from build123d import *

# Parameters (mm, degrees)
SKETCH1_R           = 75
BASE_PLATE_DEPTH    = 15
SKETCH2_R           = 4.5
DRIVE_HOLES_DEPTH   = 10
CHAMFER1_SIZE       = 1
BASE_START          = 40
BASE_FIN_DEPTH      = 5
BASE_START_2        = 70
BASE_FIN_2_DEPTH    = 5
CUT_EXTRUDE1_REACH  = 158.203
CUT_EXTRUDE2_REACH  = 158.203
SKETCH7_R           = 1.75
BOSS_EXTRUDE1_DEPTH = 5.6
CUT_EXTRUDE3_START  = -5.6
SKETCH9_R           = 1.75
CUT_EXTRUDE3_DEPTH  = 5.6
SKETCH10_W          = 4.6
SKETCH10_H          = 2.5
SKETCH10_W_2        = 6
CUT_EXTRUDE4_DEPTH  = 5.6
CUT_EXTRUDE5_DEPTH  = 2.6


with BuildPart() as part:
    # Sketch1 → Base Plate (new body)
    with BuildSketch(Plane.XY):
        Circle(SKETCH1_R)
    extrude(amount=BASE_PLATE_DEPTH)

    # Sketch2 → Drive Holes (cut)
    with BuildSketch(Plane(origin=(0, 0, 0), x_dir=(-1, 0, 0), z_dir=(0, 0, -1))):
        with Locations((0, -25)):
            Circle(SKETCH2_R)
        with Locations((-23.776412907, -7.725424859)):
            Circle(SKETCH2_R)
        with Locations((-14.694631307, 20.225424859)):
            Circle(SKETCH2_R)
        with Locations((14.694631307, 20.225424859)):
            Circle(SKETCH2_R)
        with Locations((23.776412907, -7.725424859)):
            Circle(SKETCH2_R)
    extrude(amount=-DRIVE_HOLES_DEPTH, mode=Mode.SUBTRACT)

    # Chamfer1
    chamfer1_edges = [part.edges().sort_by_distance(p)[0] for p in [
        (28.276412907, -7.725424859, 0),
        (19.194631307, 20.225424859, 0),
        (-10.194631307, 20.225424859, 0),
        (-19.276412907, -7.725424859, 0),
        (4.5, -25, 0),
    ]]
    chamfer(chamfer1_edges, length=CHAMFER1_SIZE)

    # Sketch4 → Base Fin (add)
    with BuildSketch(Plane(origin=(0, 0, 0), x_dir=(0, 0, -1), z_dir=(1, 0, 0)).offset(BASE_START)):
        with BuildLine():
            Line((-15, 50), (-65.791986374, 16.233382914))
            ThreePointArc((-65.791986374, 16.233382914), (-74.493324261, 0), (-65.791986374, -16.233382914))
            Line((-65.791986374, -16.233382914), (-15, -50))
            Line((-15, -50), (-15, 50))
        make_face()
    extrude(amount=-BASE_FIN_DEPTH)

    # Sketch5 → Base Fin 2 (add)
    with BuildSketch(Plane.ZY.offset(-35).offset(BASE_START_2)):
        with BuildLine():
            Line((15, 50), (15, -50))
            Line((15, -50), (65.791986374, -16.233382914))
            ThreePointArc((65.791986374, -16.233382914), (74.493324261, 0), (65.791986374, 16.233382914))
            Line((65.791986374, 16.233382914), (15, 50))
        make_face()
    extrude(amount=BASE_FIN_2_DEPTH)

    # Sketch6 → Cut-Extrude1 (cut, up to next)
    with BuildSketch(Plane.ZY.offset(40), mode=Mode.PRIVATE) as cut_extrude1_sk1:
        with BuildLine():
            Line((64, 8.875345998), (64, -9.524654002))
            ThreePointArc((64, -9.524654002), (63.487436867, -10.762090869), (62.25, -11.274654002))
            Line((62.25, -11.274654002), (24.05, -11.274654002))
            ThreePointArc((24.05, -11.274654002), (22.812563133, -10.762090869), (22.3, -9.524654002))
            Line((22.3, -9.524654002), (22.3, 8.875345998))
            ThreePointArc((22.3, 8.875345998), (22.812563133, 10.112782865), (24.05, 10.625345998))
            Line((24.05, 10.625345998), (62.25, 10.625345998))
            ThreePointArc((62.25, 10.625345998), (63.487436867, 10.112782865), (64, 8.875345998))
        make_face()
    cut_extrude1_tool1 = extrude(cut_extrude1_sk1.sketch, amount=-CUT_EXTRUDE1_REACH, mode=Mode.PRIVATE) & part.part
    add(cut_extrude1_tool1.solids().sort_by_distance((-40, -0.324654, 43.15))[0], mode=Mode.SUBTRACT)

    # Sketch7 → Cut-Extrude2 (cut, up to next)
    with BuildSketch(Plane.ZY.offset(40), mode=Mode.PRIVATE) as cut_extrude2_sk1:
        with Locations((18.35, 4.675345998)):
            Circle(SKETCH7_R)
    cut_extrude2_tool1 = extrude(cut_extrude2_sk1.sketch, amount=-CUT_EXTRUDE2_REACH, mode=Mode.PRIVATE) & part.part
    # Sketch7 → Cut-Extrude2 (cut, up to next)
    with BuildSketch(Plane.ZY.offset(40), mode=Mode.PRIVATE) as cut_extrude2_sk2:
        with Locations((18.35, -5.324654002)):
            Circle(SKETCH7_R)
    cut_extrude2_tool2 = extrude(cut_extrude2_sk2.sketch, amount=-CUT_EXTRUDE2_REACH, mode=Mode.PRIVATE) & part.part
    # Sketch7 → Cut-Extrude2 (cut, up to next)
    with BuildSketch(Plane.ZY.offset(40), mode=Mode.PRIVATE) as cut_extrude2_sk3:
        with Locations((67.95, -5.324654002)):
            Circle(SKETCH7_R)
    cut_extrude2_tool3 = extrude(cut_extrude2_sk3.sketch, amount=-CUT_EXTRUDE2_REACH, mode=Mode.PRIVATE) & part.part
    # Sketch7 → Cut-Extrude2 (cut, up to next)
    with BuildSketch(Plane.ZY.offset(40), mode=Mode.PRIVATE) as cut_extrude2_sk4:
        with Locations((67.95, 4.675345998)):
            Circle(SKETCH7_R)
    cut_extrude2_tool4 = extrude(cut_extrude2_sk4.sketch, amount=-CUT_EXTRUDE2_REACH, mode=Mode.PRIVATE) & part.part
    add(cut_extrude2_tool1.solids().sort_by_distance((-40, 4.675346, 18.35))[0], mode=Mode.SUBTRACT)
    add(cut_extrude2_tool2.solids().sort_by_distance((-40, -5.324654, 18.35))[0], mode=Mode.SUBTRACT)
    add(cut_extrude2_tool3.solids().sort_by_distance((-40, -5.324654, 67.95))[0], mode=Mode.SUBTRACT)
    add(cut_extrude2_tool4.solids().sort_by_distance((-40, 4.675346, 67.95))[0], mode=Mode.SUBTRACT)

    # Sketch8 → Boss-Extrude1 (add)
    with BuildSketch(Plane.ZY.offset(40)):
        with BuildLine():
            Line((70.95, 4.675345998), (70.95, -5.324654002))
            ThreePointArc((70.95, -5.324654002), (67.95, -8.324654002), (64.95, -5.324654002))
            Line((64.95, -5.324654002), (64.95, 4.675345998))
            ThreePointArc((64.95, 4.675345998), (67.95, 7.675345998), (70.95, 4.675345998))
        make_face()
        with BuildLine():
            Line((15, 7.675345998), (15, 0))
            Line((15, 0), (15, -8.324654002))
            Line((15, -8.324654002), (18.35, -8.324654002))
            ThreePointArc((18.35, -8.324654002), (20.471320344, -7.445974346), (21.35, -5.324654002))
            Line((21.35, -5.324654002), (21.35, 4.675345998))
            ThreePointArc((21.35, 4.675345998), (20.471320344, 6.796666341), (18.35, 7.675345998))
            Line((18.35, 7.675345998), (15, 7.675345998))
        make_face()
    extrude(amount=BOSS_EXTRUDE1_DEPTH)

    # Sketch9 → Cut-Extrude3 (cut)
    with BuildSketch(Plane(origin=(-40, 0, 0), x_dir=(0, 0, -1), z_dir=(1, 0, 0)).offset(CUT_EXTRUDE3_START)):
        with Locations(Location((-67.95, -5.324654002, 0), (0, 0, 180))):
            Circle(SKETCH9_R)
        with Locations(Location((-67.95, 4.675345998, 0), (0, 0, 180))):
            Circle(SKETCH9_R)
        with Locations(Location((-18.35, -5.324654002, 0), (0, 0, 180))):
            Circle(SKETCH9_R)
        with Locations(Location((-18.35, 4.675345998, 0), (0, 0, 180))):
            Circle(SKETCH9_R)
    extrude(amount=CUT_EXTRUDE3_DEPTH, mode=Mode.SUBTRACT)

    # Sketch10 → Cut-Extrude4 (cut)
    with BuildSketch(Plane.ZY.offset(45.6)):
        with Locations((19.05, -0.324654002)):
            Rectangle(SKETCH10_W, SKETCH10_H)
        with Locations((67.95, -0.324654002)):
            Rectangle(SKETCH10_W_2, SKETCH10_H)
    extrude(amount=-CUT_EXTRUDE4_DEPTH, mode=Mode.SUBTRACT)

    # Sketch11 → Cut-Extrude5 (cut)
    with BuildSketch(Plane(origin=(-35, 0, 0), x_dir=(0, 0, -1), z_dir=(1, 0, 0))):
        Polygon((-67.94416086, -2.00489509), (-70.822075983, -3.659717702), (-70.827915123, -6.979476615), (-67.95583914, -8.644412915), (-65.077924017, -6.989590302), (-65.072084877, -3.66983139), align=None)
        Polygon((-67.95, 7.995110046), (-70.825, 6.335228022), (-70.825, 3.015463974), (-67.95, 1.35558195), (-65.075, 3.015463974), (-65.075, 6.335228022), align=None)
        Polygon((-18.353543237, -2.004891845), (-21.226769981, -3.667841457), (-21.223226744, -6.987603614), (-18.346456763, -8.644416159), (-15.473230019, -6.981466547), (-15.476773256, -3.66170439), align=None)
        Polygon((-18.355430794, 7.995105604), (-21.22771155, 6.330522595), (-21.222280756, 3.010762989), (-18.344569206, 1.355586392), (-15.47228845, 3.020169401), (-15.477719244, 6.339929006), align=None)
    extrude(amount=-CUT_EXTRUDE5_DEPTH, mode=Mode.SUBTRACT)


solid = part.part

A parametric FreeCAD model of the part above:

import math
import FreeCAD as App
import Part
import Sketcher
from FreeCAD import Vector
Q = App.Units.Quantity


def edges_at(feature, points):
    """Names of the edges that pass closest to the given points."""
    edges = feature.Shape.Edges
    near = lambda p: min(range(len(edges)), key=lambda i: edges[i].distToShape(Part.Vertex(*p))[0])
    return sorted({f"Edge{near(p) + 1}" for p in points})

doc = App.newDocument("Part")
params = doc.addObject("Spreadsheet::Sheet", "Params")
for row, (alias, value) in enumerate([
    ("sketch1_diameter", "150 mm"),
    ("pad1_length", "15 mm"),
    ("sketch2_diameter", "9 mm"),
    ("pocket1_length", "10 mm"),
    ("chamfer_size", "1 mm"),
    ("sketch3_width", "100 mm"),
    ("pad2_length", "5 mm"),
    ("sketch4_width", "100 mm"),
    ("pad3_length", "5 mm"),
    ("sketch5_radius", "1.75 mm"),
    ("sketch5_width", "18.4 mm"),
    ("sketch5_height", "38.2 mm"),
    ("sketch6_diameter", "3.5 mm"),
    ("sketch7_diameter", "3.5 mm"),
    ("sketch8_diameter", "3.5 mm"),
    ("sketch9_diameter", "3.5 mm"),
    ("sketch10_radius", "3 mm"),
    ("sketch10_width", "10 mm"),
    ("sketch10_height", "3.35 mm"),
    ("pad4_length", "5.6 mm"),
    ("sketch11_diameter", "3.5 mm"),
    ("pocket7_length", "5.6 mm"),
    ("sketch12_height", "6 mm"),
    ("sketch12_width", "2.5 mm"),
    ("sketch12_height2", "4.6 mm"),
    ("pocket8_length", "5.6 mm"),
    ("pocket9_length", "2.6 mm"),
], start=1):
    params.set(f"A{row}", alias)
    params.set(f"B{row}", "=" + value)
    params.setAlias(f"B{row}", alias)

body = doc.addObject("PartDesign::Body", "Body")

# Sketch on XY plane
sketch1 = doc.addObject("Sketcher::SketchObject", "Sketch")
body.addObject(sketch1)
sketch1.AttachmentSupport = (doc.XY_Plane, [""])
sketch1.MapMode = "FlatFace"
sketch1.addGeometry(Part.Circle(Vector(0, 0, 0), Vector(0, 0, 1), 75), False)
sketch1.addConstraint([
    Sketcher.Constraint("Coincident", 0, 3, -1, 1),
    Sketcher.Constraint("Diameter", 0, Q("150 mm")),
])
sketch1.setExpression("Constraints[1]", "Params.sketch1_diameter")
pad1 = doc.addObject("PartDesign::Pad", "Pad")
body.addObject(pad1)
pad1.Profile = sketch1
pad1.setExpression("Length", "Params.pad1_length")

# Sketch on XY plane
sketch2 = doc.addObject("Sketcher::SketchObject", "Sketch001")
body.addObject(sketch2)
sketch2.AttachmentSupport = (doc.XY_Plane, [""])
sketch2.MapMode = "FlatFace"
sketch2.addGeometry([
    Part.Circle(Vector(0, -25, 0), Vector(0, 0, 1), 4.5),  # 0
    Part.Circle(Vector(23.8, -7.7, 0), Vector(0, 0, 1), 4.5),  # 1
    Part.Circle(Vector(14.7, 20.2, 0), Vector(0, 0, 1), 4.5),  # 2
    Part.Circle(Vector(-14.7, 20.2, 0), Vector(0, 0, 1), 4.5),  # 3
    Part.Circle(Vector(-23.8, -7.7, 0), Vector(0, 0, 1), 4.5),  # 4
], False)
sketch2.addConstraint([
    Sketcher.Constraint("Equal", 0, 1),
    Sketcher.Constraint("Equal", 1, 2),
    Sketcher.Constraint("Equal", 2, 3),
    Sketcher.Constraint("Equal", 3, 4),
    Sketcher.Constraint("Symmetric", 2, 3, 3, 3, -2),
    Sketcher.Constraint("Symmetric", 1, 3, 4, 3, -2),
    Sketcher.Constraint("PointOnObject", 0, 3, -2),
    Sketcher.Constraint("Diameter", 0, Q("9 mm")),
    Sketcher.Constraint("DistanceY", 0, 3, -1, 1, Q("25 mm")),
    Sketcher.Constraint("DistanceX", -1, 1, 2, 3, Q("14.694631 mm")),
    Sketcher.Constraint("DistanceX", 2, 3, 1, 3, Q("9.081782 mm")),
    Sketcher.Constraint("DistanceY", 1, 3, 2, 3, Q("27.95085 mm")),
    Sketcher.Constraint("DistanceY", 1, 3, -1, 1, Q("7.725425 mm")),
])
sketch2.setExpression("Constraints[7]", "Params.sketch2_diameter")
pocket1 = doc.addObject("PartDesign::Pocket", "Pocket")
body.addObject(pocket1)
pocket1.Profile = sketch2
pocket1.setExpression("Length", "Params.pocket1_length")
pocket1.Reversed = True
doc.recompute()

chamfer = doc.addObject("PartDesign::Chamfer", "Chamfer")
body.addObject(chamfer)
chamfer.Base = (pocket1, edges_at(pocket1, [
    (28.276, -7.725, 0),
    (19.195, 20.225, 0),
    (-10.195, 20.225, 0),
    (-19.276, -7.725, 0),
    (4.5, -25, 0),
]))
chamfer.setExpression("Size", "Params.chamfer_size")

# Sketch on YZ plane
sketch3 = doc.addObject("Sketcher::SketchObject", "Sketch002")
body.addObject(sketch3)
sketch3.AttachmentSupport = (doc.YZ_Plane, [""])
sketch3.MapMode = "FlatFace"
sketch3.AttachmentOffset = App.Placement(Vector(0, 0, 40), App.Rotation())
sketch3.addGeometry([
    Part.LineSegment(Vector(50, 15, 0), Vector(16, 66, 0)),
    Part.ArcOfCircle(Part.Circle(Vector(0, 55, 0), Vector(0, 0, 1), 19), math.radians(34), math.radians(146)),
    Part.LineSegment(Vector(-16, 66, 0), Vector(-50, 15, 0)),
    Part.LineSegment(Vector(-50, 15, 0), Vector(50, 15, 0)),
], False)
sketch3.addConstraint([
    Sketcher.Constraint("Tangent", 0, 2, 1, 1),
    Sketcher.Constraint("Tangent", 1, 2, 2, 1),
    Sketcher.Constraint("Coincident", 2, 2, 3, 1),
    Sketcher.Constraint("Coincident", 3, 2, 0, 1),
    Sketcher.Constraint("Horizontal", 3),
    Sketcher.Constraint("Symmetric", 0, 2, 1, 2, -2),
    Sketcher.Constraint("DistanceX", 3, 1, 3, 2, Q("100 mm")),
    Sketcher.Constraint("DistanceY", -1, 1, 1, 3, Q("55 mm")),
    Sketcher.Constraint("DistanceY", -1, 1, 2, 2, Q("15 mm")),
    Sketcher.Constraint("Radius", 1, Q("19.493324 mm")),
])
sketch3.setExpression("Constraints[6]", "Params.sketch3_width")
pad2 = doc.addObject("PartDesign::Pad", "Pad001")
body.addObject(pad2)
pad2.Profile = sketch3
pad2.setExpression("Length", "Params.pad2_length")
pad2.Reversed = True

# Sketch on YZ plane
sketch4 = doc.addObject("Sketcher::SketchObject", "Sketch003")
body.addObject(sketch4)
sketch4.AttachmentSupport = (doc.YZ_Plane, [""])
sketch4.MapMode = "FlatFace"
sketch4.AttachmentOffset = App.Placement(Vector(0, 0, -35), App.Rotation())
sketch4.addGeometry([
    Part.LineSegment(Vector(50, 15, 0), Vector(-50, 15, 0)),
    Part.LineSegment(Vector(-50, 15, 0), Vector(-16, 66, 0)),
    Part.ArcOfCircle(Part.Circle(Vector(0, 55, 0), Vector(0, 0, 1), 19), math.radians(34), math.radians(146)),
    Part.LineSegment(Vector(16, 66, 0), Vector(50, 15, 0)),
], False)
sketch4.addConstraint([
    Sketcher.Constraint("Coincident", 0, 2, 1, 1),
    Sketcher.Constraint("Tangent", 1, 2, 2, 2),
    Sketcher.Constraint("Tangent", 2, 1, 3, 1),
    Sketcher.Constraint("Coincident", 3, 2, 0, 1),
    Sketcher.Constraint("Horizontal", 0),
    Sketcher.Constraint("Symmetric", 1, 2, 2, 1, -2),
    Sketcher.Constraint("DistanceX", 0, 2, 0, 1, Q("100 mm")),
    Sketcher.Constraint("DistanceY", -1, 1, 2, 3, Q("55 mm")),
    Sketcher.Constraint("DistanceY", -1, 1, 0, 2, Q("15 mm")),
    Sketcher.Constraint("Radius", 2, Q("19.493324 mm")),
])
sketch4.setExpression("Constraints[6]", "Params.sketch4_width")
pad3 = doc.addObject("PartDesign::Pad", "Pad002")
body.addObject(pad3)
pad3.Profile = sketch4
pad3.setExpression("Length", "Params.pad3_length")
pad3.Reversed = True

# Sketch on YZ plane
sketch5 = doc.addObject("Sketcher::SketchObject", "Sketch004")
body.addObject(sketch5)
sketch5.AttachmentSupport = (doc.YZ_Plane, [""])
sketch5.MapMode = "FlatFace"
sketch5.AttachmentOffset = App.Placement(Vector(0, 0, -40), App.Rotation())
sketch5.addGeometry([
    Part.LineSegment(Vector(-9.5, 64, 0), Vector(8.9, 64, 0)),  # 0
    Part.ArcOfCircle(Part.Circle(Vector(8.9, 62.2, 0), Vector(0, 0, 1), 1.8), math.radians(0), math.radians(90)),  # 1
    Part.LineSegment(Vector(10.6, 62.2, 0), Vector(10.6, 24.1, 0)),  # 2
    Part.ArcOfCircle(Part.Circle(Vector(8.9, 24.1, 0), Vector(0, 0, 1), 1.8), math.radians(-90), math.radians(0)),  # 3
    Part.LineSegment(Vector(8.9, 22.3, 0), Vector(-9.5, 22.3, 0)),  # 4
    Part.ArcOfCircle(Part.Circle(Vector(-9.5, 24.1, 0), Vector(0, 0, 1), 1.8), math.radians(180), math.radians(270)),  # 5
    Part.LineSegment(Vector(-11.3, 24.1, 0), Vector(-11.3, 62.2, 0)),  # 6
    Part.ArcOfCircle(Part.Circle(Vector(-9.5, 62.2, 0), Vector(0, 0, 1), 1.8), math.radians(90), math.radians(180)),  # 7
], False)
sketch5.addConstraint([
    Sketcher.Constraint("Tangent", 0, 2, 1, 2),
    Sketcher.Constraint("Tangent", 1, 1, 2, 1),
    Sketcher.Constraint("Tangent", 2, 2, 3, 2),
    Sketcher.Constraint("Tangent", 3, 1, 4, 1),
    Sketcher.Constraint("Tangent", 4, 2, 5, 2),
    Sketcher.Constraint("Tangent", 5, 1, 6, 1),
    Sketcher.Constraint("Tangent", 6, 2, 7, 2),
    Sketcher.Constraint("Tangent", 7, 1, 0, 1),
    Sketcher.Constraint("Horizontal", 0),
    Sketcher.Constraint("Vertical", 2),
    Sketcher.Constraint("Horizontal", 4),
    Sketcher.Constraint("Vertical", 6),
    Sketcher.Constraint("Equal", 1, 3),
    Sketcher.Constraint("Equal", 3, 5),
    Sketcher.Constraint("Equal", 5, 7),
    Sketcher.Constraint("Radius", 1, Q("1.75 mm")),
    Sketcher.Constraint("DistanceX", 0, 1, 0, 2, Q("18.4 mm")),
    Sketcher.Constraint("DistanceY", 2, 2, 2, 1, Q("38.2 mm")),
    Sketcher.Constraint("DistanceY", -1, 1, 0, 2, Q("64 mm")),
    Sketcher.Constraint("DistanceX", -1, 1, 1, 3, Q("8.875346 mm")),
])
sketch5.setExpression("Constraints[15]", "Params.sketch5_radius")
sketch5.setExpression("Constraints[16]", "Params.sketch5_width")
sketch5.setExpression("Constraints[17]", "Params.sketch5_height")
pocket2 = doc.addObject("PartDesign::Pocket", "Pocket001")
body.addObject(pocket2)
pocket2.Profile = sketch5
pocket2.Type = "UpToFirst"
pocket2.Reversed = True

# Sketch on YZ plane
sketch6 = doc.addObject("Sketcher::SketchObject", "Sketch005")
body.addObject(sketch6)
sketch6.AttachmentSupport = (doc.YZ_Plane, [""])
sketch6.MapMode = "FlatFace"
sketch6.AttachmentOffset = App.Placement(Vector(0, 0, -40), App.Rotation())
sketch6.addGeometry(Part.Circle(Vector(4.7, 18.4, 0), Vector(0, 0, 1), 1.8), False)
sketch6.addConstraint([
    Sketcher.Constraint("Diameter", 0, Q("3.5 mm")),
    Sketcher.Constraint("DistanceY", -1, 1, 0, 3, Q("18.35 mm")),
    Sketcher.Constraint("DistanceX", -1, 1, 0, 3, Q("4.675346 mm")),
])
sketch6.setExpression("Constraints[0]", "Params.sketch6_diameter")
pocket3 = doc.addObject("PartDesign::Pocket", "Pocket002")
body.addObject(pocket3)
pocket3.Profile = sketch6
pocket3.Type = "UpToFirst"
pocket3.Reversed = True

# Sketch on YZ plane
sketch7 = doc.addObject("Sketcher::SketchObject", "Sketch006")
body.addObject(sketch7)
sketch7.AttachmentSupport = (doc.YZ_Plane, [""])
sketch7.MapMode = "FlatFace"
sketch7.AttachmentOffset = App.Placement(Vector(0, 0, -40), App.Rotation())
sketch7.addGeometry(Part.Circle(Vector(-5.3, 18.4, 0), Vector(0, 0, 1), 1.8), False)
sketch7.addConstraint([
    Sketcher.Constraint("Diameter", 0, Q("3.5 mm")),
    Sketcher.Constraint("DistanceY", -1, 1, 0, 3, Q("18.35 mm")),
    Sketcher.Constraint("DistanceX", 0, 3, -1, 1, Q("5.324654 mm")),
])
sketch7.setExpression("Constraints[0]", "Params.sketch7_diameter")
pocket4 = doc.addObject("PartDesign::Pocket", "Pocket003")
body.addObject(pocket4)
pocket4.Profile = sketch7
pocket4.Type = "UpToFirst"
pocket4.Reversed = True

# Sketch on YZ plane
sketch8 = doc.addObject("Sketcher::SketchObject", "Sketch007")
body.addObject(sketch8)
sketch8.AttachmentSupport = (doc.YZ_Plane, [""])
sketch8.MapMode = "FlatFace"
sketch8.AttachmentOffset = App.Placement(Vector(0, 0, -40), App.Rotation())
sketch8.addGeometry(Part.Circle(Vector(-5.3, 68, 0), Vector(0, 0, 1), 1.8), False)
sketch8.addConstraint([
    Sketcher.Constraint("Diameter", 0, Q("3.5 mm")),
    Sketcher.Constraint("DistanceY", -1, 1, 0, 3, Q("67.95 mm")),
    Sketcher.Constraint("DistanceX", 0, 3, -1, 1, Q("5.324654 mm")),
])
sketch8.setExpression("Constraints[0]", "Params.sketch8_diameter")
pocket5 = doc.addObject("PartDesign::Pocket", "Pocket004")
body.addObject(pocket5)
pocket5.Profile = sketch8
pocket5.Type = "UpToFirst"
pocket5.Reversed = True

# Sketch on YZ plane
sketch9 = doc.addObject("Sketcher::SketchObject", "Sketch008")
body.addObject(sketch9)
sketch9.AttachmentSupport = (doc.YZ_Plane, [""])
sketch9.MapMode = "FlatFace"
sketch9.AttachmentOffset = App.Placement(Vector(0, 0, -40), App.Rotation())
sketch9.addGeometry(Part.Circle(Vector(4.7, 68, 0), Vector(0, 0, 1), 1.8), False)
sketch9.addConstraint([
    Sketcher.Constraint("Diameter", 0, Q("3.5 mm")),
    Sketcher.Constraint("DistanceY", -1, 1, 0, 3, Q("67.95 mm")),
    Sketcher.Constraint("DistanceX", -1, 1, 0, 3, Q("4.675346 mm")),
])
sketch9.setExpression("Constraints[0]", "Params.sketch9_diameter")
pocket6 = doc.addObject("PartDesign::Pocket", "Pocket005")
body.addObject(pocket6)
pocket6.Profile = sketch9
pocket6.Type = "UpToFirst"
pocket6.Reversed = True

# Sketch on YZ plane
sketch10 = doc.addObject("Sketcher::SketchObject", "Sketch009")
body.addObject(sketch10)
sketch10.AttachmentSupport = (doc.YZ_Plane, [""])
sketch10.MapMode = "FlatFace"
sketch10.AttachmentOffset = App.Placement(Vector(0, 0, -40), App.Rotation())
sketch10.addGeometry([
    Part.LineSegment(Vector(-5.3, 71, 0), Vector(4.7, 71, 0)),  # 0
    Part.ArcOfCircle(Part.Circle(Vector(4.7, 68, 0), Vector(0, 0, 1), 3), math.radians(-90), math.radians(90)),  # 1
    Part.LineSegment(Vector(4.7, 65, 0), Vector(-5.3, 65, 0)),  # 2
    Part.ArcOfCircle(Part.Circle(Vector(-5.3, 68, 0), Vector(0, 0, 1), 3), math.radians(90), math.radians(270)),  # 3
    Part.LineSegment(Vector(7.7, 15, 0), Vector(-8.3, 15, 0)),  # 4
    Part.LineSegment(Vector(-8.3, 15, 0), Vector(-8.3, 18.4, 0)),  # 5
    Part.ArcOfCircle(Part.Circle(Vector(-5.3, 18.4, 0), Vector(0, 0, 1), 3), math.radians(90), math.radians(180)),  # 6
    Part.LineSegment(Vector(-5.3, 21.4, 0), Vector(4.7, 21.4, 0)),  # 7
    Part.ArcOfCircle(Part.Circle(Vector(4.7, 18.4, 0), Vector(0, 0, 1), 3), math.radians(0), math.radians(90)),  # 8
    Part.LineSegment(Vector(7.7, 18.4, 0), Vector(7.7, 15, 0)),  # 9
], False)
sketch10.addConstraint([
    Sketcher.Constraint("Tangent", 0, 2, 1, 2),
    Sketcher.Constraint("Tangent", 1, 1, 2, 1),
    Sketcher.Constraint("Tangent", 2, 2, 3, 2),
    Sketcher.Constraint("Tangent", 3, 1, 0, 1),
    Sketcher.Constraint("Coincident", 4, 2, 5, 1),
    Sketcher.Constraint("Tangent", 5, 2, 6, 2),
    Sketcher.Constraint("Tangent", 6, 1, 7, 1),
    Sketcher.Constraint("Tangent", 7, 2, 8, 2),
    Sketcher.Constraint("Tangent", 8, 1, 9, 1),
    Sketcher.Constraint("Coincident", 9, 2, 4, 1),
    Sketcher.Constraint("Horizontal", 0),
    Sketcher.Constraint("Horizontal", 2),
    Sketcher.Constraint("Horizontal", 4),
    Sketcher.Constraint("Vertical", 5),
    Sketcher.Constraint("Horizontal", 7),
    Sketcher.Constraint("Vertical", 9),
    Sketcher.Constraint("Equal", 3, 6),
    Sketcher.Constraint("Equal", 6, 8),
    Sketcher.Constraint("Vertical", 3, 3, 6, 3),
    Sketcher.Constraint("Vertical", 1, 3, 8, 3),
    Sketcher.Constraint("Radius", 1, Q("3 mm")),
    Sketcher.Constraint("DistanceX", 0, 1, 0, 2, Q("10 mm")),
    Sketcher.Constraint("DistanceY", -1, 1, 4, 2, Q("15 mm")),
    Sketcher.Constraint("DistanceY", 5, 1, 5, 2, Q("3.35 mm")),
    Sketcher.Constraint("DistanceY", 6, 3, 3, 3, Q("49.6 mm")),
    Sketcher.Constraint("DistanceX", -1, 1, 1, 3, Q("4.675346 mm")),
])
sketch10.setExpression("Constraints[20]", "Params.sketch10_radius")
sketch10.setExpression("Constraints[21]", "Params.sketch10_width")
sketch10.setExpression("Constraints[23]", "Params.sketch10_height")
pad4 = doc.addObject("PartDesign::Pad", "Pad003")
body.addObject(pad4)
pad4.Profile = sketch10
pad4.setExpression("Length", "Params.pad4_length")
pad4.Reversed = True

# Sketch on YZ plane
sketch11 = doc.addObject("Sketcher::SketchObject", "Sketch010")
body.addObject(sketch11)
sketch11.AttachmentSupport = (doc.YZ_Plane, [""])
sketch11.MapMode = "FlatFace"
sketch11.AttachmentOffset = App.Placement(Vector(0, 0, -45.6), App.Rotation())
sketch11.addGeometry([
    Part.Circle(Vector(-5.3, 68, 0), Vector(0, 0, 1), 1.8),
    Part.Circle(Vector(4.7, 68, 0), Vector(0, 0, 1), 1.8),
    Part.Circle(Vector(-5.3, 18.4, 0), Vector(0, 0, 1), 1.8),
    Part.Circle(Vector(4.7, 18.4, 0), Vector(0, 0, 1), 1.8),
], False)
sketch11.addConstraint([
    Sketcher.Constraint("Equal", 0, 1),
    Sketcher.Constraint("Equal", 1, 2),
    Sketcher.Constraint("Equal", 2, 3),
    Sketcher.Constraint("Horizontal", 0, 3, 1, 3),
    Sketcher.Constraint("Horizontal", 2, 3, 3, 3),
    Sketcher.Constraint("Vertical", 0, 3, 2, 3),
    Sketcher.Constraint("Vertical", 1, 3, 3, 3),
    Sketcher.Constraint("Diameter", 0, Q("3.5 mm")),
    Sketcher.Constraint("DistanceX", 0, 3, 1, 3, Q("10 mm")),
    Sketcher.Constraint("DistanceY", 2, 3, 0, 3, Q("49.6 mm")),
    Sketcher.Constraint("DistanceY", -1, 1, 0, 3, Q("67.95 mm")),
    Sketcher.Constraint("DistanceX", 0, 3, -1, 1, Q("5.324654 mm")),
])
sketch11.setExpression("Constraints[7]", "Params.sketch11_diameter")
pocket7 = doc.addObject("PartDesign::Pocket", "Pocket006")
body.addObject(pocket7)
pocket7.Profile = sketch11
pocket7.setExpression("Length", "Params.pocket7_length")
pocket7.Reversed = True

# Sketch on YZ plane
sketch12 = doc.addObject("Sketcher::SketchObject", "Sketch011")
body.addObject(sketch12)
sketch12.AttachmentSupport = (doc.YZ_Plane, [""])
sketch12.MapMode = "FlatFace"
sketch12.AttachmentOffset = App.Placement(Vector(0, 0, -45.6), App.Rotation())
sketch12.addGeometry([
    Part.LineSegment(Vector(0.9, 16.8, 0), Vector(-1.6, 16.8, 0)),  # 0
    Part.LineSegment(Vector(-1.6, 16.8, 0), Vector(-1.6, 21.4, 0)),  # 1
    Part.LineSegment(Vector(-1.6, 21.4, 0), Vector(0.9, 21.4, 0)),  # 2
    Part.LineSegment(Vector(0.9, 21.4, 0), Vector(0.9, 16.8, 0)),  # 3
    Part.LineSegment(Vector(0.9, 65, 0), Vector(-1.6, 65, 0)),  # 4
    Part.LineSegment(Vector(-1.6, 65, 0), Vector(-1.6, 71, 0)),  # 5
    Part.LineSegment(Vector(-1.6, 71, 0), Vector(0.9, 71, 0)),  # 6
    Part.LineSegment(Vector(0.9, 71, 0), Vector(0.9, 65, 0)),  # 7
], False)
sketch12.addConstraint([
    Sketcher.Constraint("Coincident", 0, 2, 1, 1),
    Sketcher.Constraint("Coincident", 1, 2, 2, 1),
    Sketcher.Constraint("Coincident", 2, 2, 3, 1),
    Sketcher.Constraint("Coincident", 3, 2, 0, 1),
    Sketcher.Constraint("Coincident", 4, 2, 5, 1),
    Sketcher.Constraint("Coincident", 5, 2, 6, 1),
    Sketcher.Constraint("Coincident", 6, 2, 7, 1),
    Sketcher.Constraint("Coincident", 7, 2, 4, 1),
    Sketcher.Constraint("Horizontal", 0),
    Sketcher.Constraint("Vertical", 1),
    Sketcher.Constraint("Horizontal", 2),
    Sketcher.Constraint("Vertical", 3),
    Sketcher.Constraint("Horizontal", 4),
    Sketcher.Constraint("Vertical", 5),
    Sketcher.Constraint("Horizontal", 6),
    Sketcher.Constraint("Vertical", 7),
    Sketcher.Constraint("Vertical", 1, 2, 4, 2),
    Sketcher.Constraint("Vertical", 3, 2, 6, 2),
    Sketcher.Constraint("DistanceY", 5, 1, 5, 2, Q("6 mm")),
    Sketcher.Constraint("DistanceX", 0, 2, 0, 1, Q("2.5 mm")),
    Sketcher.Constraint("DistanceY", 1, 1, 1, 2, Q("4.6 mm")),
    Sketcher.Constraint("DistanceY", 1, 2, 4, 2, Q("43.6 mm")),
    Sketcher.Constraint("DistanceY", -1, 1, 0, 2, Q("16.75 mm")),
    Sketcher.Constraint("DistanceX", 0, 2, -1, 1, Q("1.574654 mm")),
])
sketch12.setExpression("Constraints[18]", "Params.sketch12_height")
sketch12.setExpression("Constraints[19]", "Params.sketch12_width")
sketch12.setExpression("Constraints[20]", "Params.sketch12_height2")
pocket8 = doc.addObject("PartDesign::Pocket", "Pocket007")
body.addObject(pocket8)
pocket8.Profile = sketch12
pocket8.setExpression("Length", "Params.pocket8_length")
pocket8.Reversed = True

# Sketch on YZ plane
sketch13 = doc.addObject("Sketcher::SketchObject", "Sketch012")
body.addObject(sketch13)
sketch13.AttachmentSupport = (doc.YZ_Plane, [""])
sketch13.MapMode = "FlatFace"
sketch13.AttachmentOffset = App.Placement(Vector(0, 0, -35), App.Rotation())
sketch13.addGeometry([
    Part.LineSegment(Vector(-2, 67.9, 0), Vector(-3.7, 70.8, 0)),  # 0
    Part.LineSegment(Vector(-3.7, 70.8, 0), Vector(-7, 70.8, 0)),  # 1
    Part.LineSegment(Vector(-7, 70.8, 0), Vector(-8.6, 68, 0)),  # 2
    Part.LineSegment(Vector(-8.6, 68, 0), Vector(-7, 65.1, 0)),  # 3
    Part.LineSegment(Vector(-7, 65.1, 0), Vector(-3.7, 65.1, 0)),  # 4
    Part.LineSegment(Vector(-3.7, 65.1, 0), Vector(-2, 67.9, 0)),  # 5
    Part.LineSegment(Vector(8, 68, 0), Vector(6.3, 70.8, 0)),  # 6
    Part.LineSegment(Vector(6.3, 70.8, 0), Vector(3, 70.8, 0)),  # 7
    Part.LineSegment(Vector(3, 70.8, 0), Vector(1.4, 68, 0)),  # 8
    Part.LineSegment(Vector(1.4, 68, 0), Vector(3, 65.1, 0)),  # 9
    Part.LineSegment(Vector(3, 65.1, 0), Vector(6.3, 65.1, 0)),  # 10
    Part.LineSegment(Vector(6.3, 65.1, 0), Vector(8, 68, 0)),  # 11
    Part.LineSegment(Vector(-2, 18.4, 0), Vector(-3.7, 21.2, 0)),  # 12
    Part.LineSegment(Vector(-3.7, 21.2, 0), Vector(-7, 21.2, 0)),  # 13
    Part.LineSegment(Vector(-7, 21.2, 0), Vector(-8.6, 18.3, 0)),  # 14
    Part.LineSegment(Vector(-8.6, 18.3, 0), Vector(-7, 15.5, 0)),  # 15
    Part.LineSegment(Vector(-7, 15.5, 0), Vector(-3.7, 15.5, 0)),  # 16
    Part.LineSegment(Vector(-3.7, 15.5, 0), Vector(-2, 18.4, 0)),  # 17
    Part.LineSegment(Vector(8, 18.4, 0), Vector(6.3, 21.2, 0)),  # 18
    Part.LineSegment(Vector(6.3, 21.2, 0), Vector(3, 21.2, 0)),  # 19
    Part.LineSegment(Vector(3, 21.2, 0), Vector(1.4, 18.3, 0)),  # 20
    Part.LineSegment(Vector(1.4, 18.3, 0), Vector(3, 15.5, 0)),  # 21
    Part.LineSegment(Vector(3, 15.5, 0), Vector(6.3, 15.5, 0)),  # 22
    Part.LineSegment(Vector(6.3, 15.5, 0), Vector(8, 18.4, 0)),  # 23
], False)
sketch13.addConstraint([
    Sketcher.Constraint("Coincident", 0, 2, 1, 1),
    Sketcher.Constraint("Coincident", 1, 2, 2, 1),
    Sketcher.Constraint("Coincident", 2, 2, 3, 1),
    Sketcher.Constraint("Coincident", 3, 2, 4, 1),
    Sketcher.Constraint("Coincident", 4, 2, 5, 1),
    Sketcher.Constraint("Coincident", 5, 2, 0, 1),
    Sketcher.Constraint("Coincident", 6, 2, 7, 1),
    Sketcher.Constraint("Coincident", 7, 2, 8, 1),
    Sketcher.Constraint("Coincident", 8, 2, 9, 1),
    Sketcher.Constraint("Coincident", 9, 2, 10, 1),
    Sketcher.Constraint("Coincident", 10, 2, 11, 1),
    Sketcher.Constraint("Coincident", 11, 2, 6, 1),
    Sketcher.Constraint("Coincident", 12, 2, 13, 1),
    Sketcher.Constraint("Coincident", 13, 2, 14, 1),
    Sketcher.Constraint("Coincident", 14, 2, 15, 1),
    Sketcher.Constraint("Coincident", 15, 2, 16, 1),
    Sketcher.Constraint("Coincident", 16, 2, 17, 1),
    Sketcher.Constraint("Coincident", 17, 2, 12, 1),
    Sketcher.Constraint("Coincident", 18, 2, 19, 1),
    Sketcher.Constraint("Coincident", 19, 2, 20, 1),
    Sketcher.Constraint("Coincident", 20, 2, 21, 1),
    Sketcher.Constraint("Coincident", 21, 2, 22, 1),
    Sketcher.Constraint("Coincident", 22, 2, 23, 1),
    Sketcher.Constraint("Coincident", 23, 2, 18, 1),
    Sketcher.Constraint("Horizontal", 7),
    Sketcher.Constraint("Horizontal", 10),
    Sketcher.Constraint("Parallel", 0, 3),
    Sketcher.Constraint("Parallel", 1, 4),
    Sketcher.Constraint("Parallel", 2, 5),
    Sketcher.Constraint("Parallel", 6, 9),
    Sketcher.Constraint("Parallel", 8, 11),
    Sketcher.Constraint("Parallel", 12, 15),
    Sketcher.Constraint("Parallel", 13, 16),
    Sketcher.Constraint("Parallel", 14, 17),
    Sketcher.Constraint("Parallel", 18, 21),
    Sketcher.Constraint("Parallel", 19, 22),
    Sketcher.Constraint("Parallel", 20, 23),
    Sketcher.Constraint("Horizontal", 8, 2, 11, 2),
    Sketcher.Constraint("Vertical", 7, 2, 9, 2),
    Sketcher.Constraint("Vertical", 6, 2, 10, 2),
    Sketcher.Constraint("Equal", 0, 1),
    Sketcher.Constraint("Equal", 1, 2),
    Sketcher.Constraint("Equal", 2, 3),
    Sketcher.Constraint("Equal", 5, 6),
    Sketcher.Constraint("Equal", 11, 12),
    Sketcher.Constraint("Equal", 12, 13),
    Sketcher.Constraint("Equal", 13, 14),
    Sketcher.Constraint("Equal", 14, 15),
    Sketcher.Constraint("Equal", 17, 18),
    Sketcher.Constraint("Equal", 18, 19),
    Sketcher.Constraint("Equal", 19, 20),
    Sketcher.Constraint("Equal", 20, 21),
    Sketcher.Constraint("Angle", 6, Q("120 deg")),
    Sketcher.Constraint("DistanceY", -1, 1, 8, 2, Q("67.95 mm")),
    Sketcher.Constraint("DistanceY", 9, 2, 7, 2, Q("5.75 mm")),
    Sketcher.Constraint("DistanceX", 0, 2, 8, 2, Q("5.0153 mm")),
    Sketcher.Constraint("DistanceX", 13, 2, 16, 2, Q("3.325899 mm")),
    Sketcher.Constraint("DistanceY", 20, 2, 12, 2, Q("2.882201 mm")),
    Sketcher.Constraint("DistanceX", 7, 2, 7, 1, Q("3.319764 mm")),
    Sketcher.Constraint("DistanceY", -1, 1, 2, 2, Q("67.955839 mm")),
    Sketcher.Constraint("DistanceX", 3, 2, -1, 1, Q("6.98959 mm")),
    Sketcher.Constraint("DistanceY", -1, 1, 5, 2, Q("67.944161 mm")),
    Sketcher.Constraint("DistanceX", -1, 1, 6, 2, Q("6.335228 mm")),
    Sketcher.Constraint("DistanceX", 12, 2, -1, 1, Q("3.667841 mm")),
    Sketcher.Constraint("DistanceY", -1, 1, 12, 2, Q("21.22677 mm")),
    Sketcher.Constraint("DistanceY", -1, 1, 15, 2, Q("15.47323 mm")),
    Sketcher.Constraint("DistanceX", 17, 2, -1, 1, Q("2.004892 mm")),
    Sketcher.Constraint("DistanceY", -1, 1, 18, 2, Q("21.227712 mm")),
    Sketcher.Constraint("DistanceY", -1, 1, 19, 2, Q("21.222281 mm")),
    Sketcher.Constraint("DistanceX", -1, 1, 21, 2, Q("3.020169 mm")),
    Sketcher.Constraint("DistanceY", -1, 1, 21, 2, Q("15.472288 mm")),
    Sketcher.Constraint("DistanceY", 3, 2, 1, 2, Q("5.749991 mm")),
])
pocket9 = doc.addObject("PartDesign::Pocket", "Pocket008")
body.addObject(pocket9)
pocket9.Profile = sketch13
pocket9.setExpression("Length", "Params.pocket9_length")

doc.recompute()
